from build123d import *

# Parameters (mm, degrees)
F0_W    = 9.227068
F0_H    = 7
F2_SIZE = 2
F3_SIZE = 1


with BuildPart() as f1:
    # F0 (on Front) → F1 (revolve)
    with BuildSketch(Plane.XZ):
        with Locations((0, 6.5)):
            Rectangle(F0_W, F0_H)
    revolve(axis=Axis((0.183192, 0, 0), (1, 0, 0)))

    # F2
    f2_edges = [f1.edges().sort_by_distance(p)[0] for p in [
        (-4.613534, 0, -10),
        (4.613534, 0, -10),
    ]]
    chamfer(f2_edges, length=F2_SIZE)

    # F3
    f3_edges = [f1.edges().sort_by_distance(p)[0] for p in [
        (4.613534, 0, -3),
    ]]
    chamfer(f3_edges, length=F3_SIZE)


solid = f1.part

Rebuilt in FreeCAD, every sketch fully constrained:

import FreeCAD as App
import Part
import Sketcher


def edges_at(feature, points):
    """Names of the edges that pass closest to the given points."""
    edges = feature.Shape.Edges
    near = lambda p: min(range(len(edges)), key=lambda i: edges[i].distToShape(Part.Vertex(*p))[0])
    return sorted({f"Edge{near(p) + 1}" for p in points})


def add_polygon(sketch, points):
    """Adds a closed chain of lines whose ends are joined by coincident constraints."""
    first, n = sketch.GeometryCount, len(points)
    for a, b in zip(points, points[1:] + points[:1]):
        sketch.addGeometry(Part.LineSegment(App.Vector(*a, 0), App.Vector(*b, 0)), False)
    for i in range(n):
        sketch.addConstraint(Sketcher.Constraint("Coincident", first + i, 2, first + (i + 1) % n, 1))

doc = App.newDocument("Part")
body = doc.addObject("PartDesign::Body", "Body")

# Sketch on XZ plane
sketch1 = body.newObject("Sketcher::SketchObject", "Sketch")
sketch1.AttachmentSupport = (doc.getObject("XZ_Plane"), [""])
sketch1.MapMode = "FlatFace"
add_polygon(sketch1, [(-5, 10), (-5, 3), (5, 3), (5, 10)])  # lines 0-3
sketch1.addConstraint([
    Sketcher.Constraint("Vertical", 0),
    Sketcher.Constraint("Horizontal", 1),
    Sketcher.Constraint("Vertical", 2),
    Sketcher.Constraint("Horizontal", 3),
    Sketcher.Constraint("DistanceY", 0, 2, 0, 1, 7.0),
    Sketcher.Constraint("DistanceY", -1, 1, 0, 2, 3.0),
    Sketcher.Constraint("DistanceX", 1, 1, 1, 2, 9.227068),
    Sketcher.Constraint("DistanceX", 0, 2, -1, 1, 4.613534),
])
revolution = body.newObject("PartDesign::Revolution", "Revolution")
revolution.Profile = sketch1
revolution.ReferenceAxis = (sketch1, ["H_Axis"])
revolution.Angle = 360
doc.recompute()

chamfer = body.newObject("PartDesign::Chamfer", "Chamfer")
chamfer.Base = (revolution, edges_at(revolution, [(-4.614, 0, -10), (4.614, 0, -10)]))
chamfer.Size = 2
doc.recompute()

chamfer2 = body.newObject("PartDesign::Chamfer", "Chamfer001")
chamfer2.Base = (chamfer, edges_at(chamfer, [(4.614, 0, -3)]))
chamfer2.Size = 1

doc.recompute()
